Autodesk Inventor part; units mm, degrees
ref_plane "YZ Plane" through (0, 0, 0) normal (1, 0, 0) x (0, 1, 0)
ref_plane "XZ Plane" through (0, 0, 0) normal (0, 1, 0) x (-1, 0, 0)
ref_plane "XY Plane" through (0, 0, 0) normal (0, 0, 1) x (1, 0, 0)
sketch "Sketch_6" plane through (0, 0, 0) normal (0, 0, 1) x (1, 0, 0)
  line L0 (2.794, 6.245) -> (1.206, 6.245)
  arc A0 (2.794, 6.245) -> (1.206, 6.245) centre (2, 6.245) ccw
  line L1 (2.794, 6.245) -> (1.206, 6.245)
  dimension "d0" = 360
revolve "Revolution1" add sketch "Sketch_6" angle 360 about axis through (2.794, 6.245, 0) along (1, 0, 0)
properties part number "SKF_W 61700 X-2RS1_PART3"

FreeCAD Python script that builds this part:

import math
import FreeCAD as App
import Part
import Sketcher
Q = App.Units.Quantity

doc = App.newDocument("Part")
body = doc.addObject("PartDesign::Body", "Body")

# Sketch on XY plane
sketch1 = doc.addObject("Sketcher::SketchObject", "Sketch")
body.addObject(sketch1)
sketch1.AttachmentSupport = (doc.XY_Plane, [""])
sketch1.MapMode = "FlatFace"
sketch1.addGeometry([
    Part.LineSegment(App.Vector(1.206, 6.245, 0), App.Vector(2.794, 6.245, 0)),
    Part.ArcOfCircle(Part.Circle(App.Vector(2, 6.245, 0), App.Vector(0, 0, 1), 0.794), math.radians(0), math.radians(180)),
], False)
sketch1.addGeometry(Part.LineSegment(App.Vector(1.206, 6.245, 0), App.Vector(2.794, 6.245, 0)), True)  # axis
sketch1.addConstraint([
    Sketcher.Constraint("Coincident", 0, 1, 1, 2),
    Sketcher.Constraint("Coincident", 1, 1, 0, 2),
    Sketcher.Constraint("Horizontal", 0),
    Sketcher.Constraint("Horizontal", 2),
    Sketcher.Constraint("Coincident", 2, 1, 0, 1),
    Sketcher.Constraint("Horizontal", 1, 3, 0, 1),
    Sketcher.Constraint("Equal", 0, 2),
    Sketcher.Constraint("DistanceX", -1, 1, 1, 3, Q("2 mm")),
    Sketcher.Constraint("Radius", 1, Q("0.794 mm")),
    Sketcher.Constraint("DistanceY", -1, 1, 1, 3, Q("6.245 mm")),
])
revolution = doc.addObject("PartDesign::Revolution", "Revolution")
body.addObject(revolution)
revolution.Profile = sketch1
revolution.ReferenceAxis = (sketch1, ["Axis0"])
revolution.Angle = 360

doc.recompute()
